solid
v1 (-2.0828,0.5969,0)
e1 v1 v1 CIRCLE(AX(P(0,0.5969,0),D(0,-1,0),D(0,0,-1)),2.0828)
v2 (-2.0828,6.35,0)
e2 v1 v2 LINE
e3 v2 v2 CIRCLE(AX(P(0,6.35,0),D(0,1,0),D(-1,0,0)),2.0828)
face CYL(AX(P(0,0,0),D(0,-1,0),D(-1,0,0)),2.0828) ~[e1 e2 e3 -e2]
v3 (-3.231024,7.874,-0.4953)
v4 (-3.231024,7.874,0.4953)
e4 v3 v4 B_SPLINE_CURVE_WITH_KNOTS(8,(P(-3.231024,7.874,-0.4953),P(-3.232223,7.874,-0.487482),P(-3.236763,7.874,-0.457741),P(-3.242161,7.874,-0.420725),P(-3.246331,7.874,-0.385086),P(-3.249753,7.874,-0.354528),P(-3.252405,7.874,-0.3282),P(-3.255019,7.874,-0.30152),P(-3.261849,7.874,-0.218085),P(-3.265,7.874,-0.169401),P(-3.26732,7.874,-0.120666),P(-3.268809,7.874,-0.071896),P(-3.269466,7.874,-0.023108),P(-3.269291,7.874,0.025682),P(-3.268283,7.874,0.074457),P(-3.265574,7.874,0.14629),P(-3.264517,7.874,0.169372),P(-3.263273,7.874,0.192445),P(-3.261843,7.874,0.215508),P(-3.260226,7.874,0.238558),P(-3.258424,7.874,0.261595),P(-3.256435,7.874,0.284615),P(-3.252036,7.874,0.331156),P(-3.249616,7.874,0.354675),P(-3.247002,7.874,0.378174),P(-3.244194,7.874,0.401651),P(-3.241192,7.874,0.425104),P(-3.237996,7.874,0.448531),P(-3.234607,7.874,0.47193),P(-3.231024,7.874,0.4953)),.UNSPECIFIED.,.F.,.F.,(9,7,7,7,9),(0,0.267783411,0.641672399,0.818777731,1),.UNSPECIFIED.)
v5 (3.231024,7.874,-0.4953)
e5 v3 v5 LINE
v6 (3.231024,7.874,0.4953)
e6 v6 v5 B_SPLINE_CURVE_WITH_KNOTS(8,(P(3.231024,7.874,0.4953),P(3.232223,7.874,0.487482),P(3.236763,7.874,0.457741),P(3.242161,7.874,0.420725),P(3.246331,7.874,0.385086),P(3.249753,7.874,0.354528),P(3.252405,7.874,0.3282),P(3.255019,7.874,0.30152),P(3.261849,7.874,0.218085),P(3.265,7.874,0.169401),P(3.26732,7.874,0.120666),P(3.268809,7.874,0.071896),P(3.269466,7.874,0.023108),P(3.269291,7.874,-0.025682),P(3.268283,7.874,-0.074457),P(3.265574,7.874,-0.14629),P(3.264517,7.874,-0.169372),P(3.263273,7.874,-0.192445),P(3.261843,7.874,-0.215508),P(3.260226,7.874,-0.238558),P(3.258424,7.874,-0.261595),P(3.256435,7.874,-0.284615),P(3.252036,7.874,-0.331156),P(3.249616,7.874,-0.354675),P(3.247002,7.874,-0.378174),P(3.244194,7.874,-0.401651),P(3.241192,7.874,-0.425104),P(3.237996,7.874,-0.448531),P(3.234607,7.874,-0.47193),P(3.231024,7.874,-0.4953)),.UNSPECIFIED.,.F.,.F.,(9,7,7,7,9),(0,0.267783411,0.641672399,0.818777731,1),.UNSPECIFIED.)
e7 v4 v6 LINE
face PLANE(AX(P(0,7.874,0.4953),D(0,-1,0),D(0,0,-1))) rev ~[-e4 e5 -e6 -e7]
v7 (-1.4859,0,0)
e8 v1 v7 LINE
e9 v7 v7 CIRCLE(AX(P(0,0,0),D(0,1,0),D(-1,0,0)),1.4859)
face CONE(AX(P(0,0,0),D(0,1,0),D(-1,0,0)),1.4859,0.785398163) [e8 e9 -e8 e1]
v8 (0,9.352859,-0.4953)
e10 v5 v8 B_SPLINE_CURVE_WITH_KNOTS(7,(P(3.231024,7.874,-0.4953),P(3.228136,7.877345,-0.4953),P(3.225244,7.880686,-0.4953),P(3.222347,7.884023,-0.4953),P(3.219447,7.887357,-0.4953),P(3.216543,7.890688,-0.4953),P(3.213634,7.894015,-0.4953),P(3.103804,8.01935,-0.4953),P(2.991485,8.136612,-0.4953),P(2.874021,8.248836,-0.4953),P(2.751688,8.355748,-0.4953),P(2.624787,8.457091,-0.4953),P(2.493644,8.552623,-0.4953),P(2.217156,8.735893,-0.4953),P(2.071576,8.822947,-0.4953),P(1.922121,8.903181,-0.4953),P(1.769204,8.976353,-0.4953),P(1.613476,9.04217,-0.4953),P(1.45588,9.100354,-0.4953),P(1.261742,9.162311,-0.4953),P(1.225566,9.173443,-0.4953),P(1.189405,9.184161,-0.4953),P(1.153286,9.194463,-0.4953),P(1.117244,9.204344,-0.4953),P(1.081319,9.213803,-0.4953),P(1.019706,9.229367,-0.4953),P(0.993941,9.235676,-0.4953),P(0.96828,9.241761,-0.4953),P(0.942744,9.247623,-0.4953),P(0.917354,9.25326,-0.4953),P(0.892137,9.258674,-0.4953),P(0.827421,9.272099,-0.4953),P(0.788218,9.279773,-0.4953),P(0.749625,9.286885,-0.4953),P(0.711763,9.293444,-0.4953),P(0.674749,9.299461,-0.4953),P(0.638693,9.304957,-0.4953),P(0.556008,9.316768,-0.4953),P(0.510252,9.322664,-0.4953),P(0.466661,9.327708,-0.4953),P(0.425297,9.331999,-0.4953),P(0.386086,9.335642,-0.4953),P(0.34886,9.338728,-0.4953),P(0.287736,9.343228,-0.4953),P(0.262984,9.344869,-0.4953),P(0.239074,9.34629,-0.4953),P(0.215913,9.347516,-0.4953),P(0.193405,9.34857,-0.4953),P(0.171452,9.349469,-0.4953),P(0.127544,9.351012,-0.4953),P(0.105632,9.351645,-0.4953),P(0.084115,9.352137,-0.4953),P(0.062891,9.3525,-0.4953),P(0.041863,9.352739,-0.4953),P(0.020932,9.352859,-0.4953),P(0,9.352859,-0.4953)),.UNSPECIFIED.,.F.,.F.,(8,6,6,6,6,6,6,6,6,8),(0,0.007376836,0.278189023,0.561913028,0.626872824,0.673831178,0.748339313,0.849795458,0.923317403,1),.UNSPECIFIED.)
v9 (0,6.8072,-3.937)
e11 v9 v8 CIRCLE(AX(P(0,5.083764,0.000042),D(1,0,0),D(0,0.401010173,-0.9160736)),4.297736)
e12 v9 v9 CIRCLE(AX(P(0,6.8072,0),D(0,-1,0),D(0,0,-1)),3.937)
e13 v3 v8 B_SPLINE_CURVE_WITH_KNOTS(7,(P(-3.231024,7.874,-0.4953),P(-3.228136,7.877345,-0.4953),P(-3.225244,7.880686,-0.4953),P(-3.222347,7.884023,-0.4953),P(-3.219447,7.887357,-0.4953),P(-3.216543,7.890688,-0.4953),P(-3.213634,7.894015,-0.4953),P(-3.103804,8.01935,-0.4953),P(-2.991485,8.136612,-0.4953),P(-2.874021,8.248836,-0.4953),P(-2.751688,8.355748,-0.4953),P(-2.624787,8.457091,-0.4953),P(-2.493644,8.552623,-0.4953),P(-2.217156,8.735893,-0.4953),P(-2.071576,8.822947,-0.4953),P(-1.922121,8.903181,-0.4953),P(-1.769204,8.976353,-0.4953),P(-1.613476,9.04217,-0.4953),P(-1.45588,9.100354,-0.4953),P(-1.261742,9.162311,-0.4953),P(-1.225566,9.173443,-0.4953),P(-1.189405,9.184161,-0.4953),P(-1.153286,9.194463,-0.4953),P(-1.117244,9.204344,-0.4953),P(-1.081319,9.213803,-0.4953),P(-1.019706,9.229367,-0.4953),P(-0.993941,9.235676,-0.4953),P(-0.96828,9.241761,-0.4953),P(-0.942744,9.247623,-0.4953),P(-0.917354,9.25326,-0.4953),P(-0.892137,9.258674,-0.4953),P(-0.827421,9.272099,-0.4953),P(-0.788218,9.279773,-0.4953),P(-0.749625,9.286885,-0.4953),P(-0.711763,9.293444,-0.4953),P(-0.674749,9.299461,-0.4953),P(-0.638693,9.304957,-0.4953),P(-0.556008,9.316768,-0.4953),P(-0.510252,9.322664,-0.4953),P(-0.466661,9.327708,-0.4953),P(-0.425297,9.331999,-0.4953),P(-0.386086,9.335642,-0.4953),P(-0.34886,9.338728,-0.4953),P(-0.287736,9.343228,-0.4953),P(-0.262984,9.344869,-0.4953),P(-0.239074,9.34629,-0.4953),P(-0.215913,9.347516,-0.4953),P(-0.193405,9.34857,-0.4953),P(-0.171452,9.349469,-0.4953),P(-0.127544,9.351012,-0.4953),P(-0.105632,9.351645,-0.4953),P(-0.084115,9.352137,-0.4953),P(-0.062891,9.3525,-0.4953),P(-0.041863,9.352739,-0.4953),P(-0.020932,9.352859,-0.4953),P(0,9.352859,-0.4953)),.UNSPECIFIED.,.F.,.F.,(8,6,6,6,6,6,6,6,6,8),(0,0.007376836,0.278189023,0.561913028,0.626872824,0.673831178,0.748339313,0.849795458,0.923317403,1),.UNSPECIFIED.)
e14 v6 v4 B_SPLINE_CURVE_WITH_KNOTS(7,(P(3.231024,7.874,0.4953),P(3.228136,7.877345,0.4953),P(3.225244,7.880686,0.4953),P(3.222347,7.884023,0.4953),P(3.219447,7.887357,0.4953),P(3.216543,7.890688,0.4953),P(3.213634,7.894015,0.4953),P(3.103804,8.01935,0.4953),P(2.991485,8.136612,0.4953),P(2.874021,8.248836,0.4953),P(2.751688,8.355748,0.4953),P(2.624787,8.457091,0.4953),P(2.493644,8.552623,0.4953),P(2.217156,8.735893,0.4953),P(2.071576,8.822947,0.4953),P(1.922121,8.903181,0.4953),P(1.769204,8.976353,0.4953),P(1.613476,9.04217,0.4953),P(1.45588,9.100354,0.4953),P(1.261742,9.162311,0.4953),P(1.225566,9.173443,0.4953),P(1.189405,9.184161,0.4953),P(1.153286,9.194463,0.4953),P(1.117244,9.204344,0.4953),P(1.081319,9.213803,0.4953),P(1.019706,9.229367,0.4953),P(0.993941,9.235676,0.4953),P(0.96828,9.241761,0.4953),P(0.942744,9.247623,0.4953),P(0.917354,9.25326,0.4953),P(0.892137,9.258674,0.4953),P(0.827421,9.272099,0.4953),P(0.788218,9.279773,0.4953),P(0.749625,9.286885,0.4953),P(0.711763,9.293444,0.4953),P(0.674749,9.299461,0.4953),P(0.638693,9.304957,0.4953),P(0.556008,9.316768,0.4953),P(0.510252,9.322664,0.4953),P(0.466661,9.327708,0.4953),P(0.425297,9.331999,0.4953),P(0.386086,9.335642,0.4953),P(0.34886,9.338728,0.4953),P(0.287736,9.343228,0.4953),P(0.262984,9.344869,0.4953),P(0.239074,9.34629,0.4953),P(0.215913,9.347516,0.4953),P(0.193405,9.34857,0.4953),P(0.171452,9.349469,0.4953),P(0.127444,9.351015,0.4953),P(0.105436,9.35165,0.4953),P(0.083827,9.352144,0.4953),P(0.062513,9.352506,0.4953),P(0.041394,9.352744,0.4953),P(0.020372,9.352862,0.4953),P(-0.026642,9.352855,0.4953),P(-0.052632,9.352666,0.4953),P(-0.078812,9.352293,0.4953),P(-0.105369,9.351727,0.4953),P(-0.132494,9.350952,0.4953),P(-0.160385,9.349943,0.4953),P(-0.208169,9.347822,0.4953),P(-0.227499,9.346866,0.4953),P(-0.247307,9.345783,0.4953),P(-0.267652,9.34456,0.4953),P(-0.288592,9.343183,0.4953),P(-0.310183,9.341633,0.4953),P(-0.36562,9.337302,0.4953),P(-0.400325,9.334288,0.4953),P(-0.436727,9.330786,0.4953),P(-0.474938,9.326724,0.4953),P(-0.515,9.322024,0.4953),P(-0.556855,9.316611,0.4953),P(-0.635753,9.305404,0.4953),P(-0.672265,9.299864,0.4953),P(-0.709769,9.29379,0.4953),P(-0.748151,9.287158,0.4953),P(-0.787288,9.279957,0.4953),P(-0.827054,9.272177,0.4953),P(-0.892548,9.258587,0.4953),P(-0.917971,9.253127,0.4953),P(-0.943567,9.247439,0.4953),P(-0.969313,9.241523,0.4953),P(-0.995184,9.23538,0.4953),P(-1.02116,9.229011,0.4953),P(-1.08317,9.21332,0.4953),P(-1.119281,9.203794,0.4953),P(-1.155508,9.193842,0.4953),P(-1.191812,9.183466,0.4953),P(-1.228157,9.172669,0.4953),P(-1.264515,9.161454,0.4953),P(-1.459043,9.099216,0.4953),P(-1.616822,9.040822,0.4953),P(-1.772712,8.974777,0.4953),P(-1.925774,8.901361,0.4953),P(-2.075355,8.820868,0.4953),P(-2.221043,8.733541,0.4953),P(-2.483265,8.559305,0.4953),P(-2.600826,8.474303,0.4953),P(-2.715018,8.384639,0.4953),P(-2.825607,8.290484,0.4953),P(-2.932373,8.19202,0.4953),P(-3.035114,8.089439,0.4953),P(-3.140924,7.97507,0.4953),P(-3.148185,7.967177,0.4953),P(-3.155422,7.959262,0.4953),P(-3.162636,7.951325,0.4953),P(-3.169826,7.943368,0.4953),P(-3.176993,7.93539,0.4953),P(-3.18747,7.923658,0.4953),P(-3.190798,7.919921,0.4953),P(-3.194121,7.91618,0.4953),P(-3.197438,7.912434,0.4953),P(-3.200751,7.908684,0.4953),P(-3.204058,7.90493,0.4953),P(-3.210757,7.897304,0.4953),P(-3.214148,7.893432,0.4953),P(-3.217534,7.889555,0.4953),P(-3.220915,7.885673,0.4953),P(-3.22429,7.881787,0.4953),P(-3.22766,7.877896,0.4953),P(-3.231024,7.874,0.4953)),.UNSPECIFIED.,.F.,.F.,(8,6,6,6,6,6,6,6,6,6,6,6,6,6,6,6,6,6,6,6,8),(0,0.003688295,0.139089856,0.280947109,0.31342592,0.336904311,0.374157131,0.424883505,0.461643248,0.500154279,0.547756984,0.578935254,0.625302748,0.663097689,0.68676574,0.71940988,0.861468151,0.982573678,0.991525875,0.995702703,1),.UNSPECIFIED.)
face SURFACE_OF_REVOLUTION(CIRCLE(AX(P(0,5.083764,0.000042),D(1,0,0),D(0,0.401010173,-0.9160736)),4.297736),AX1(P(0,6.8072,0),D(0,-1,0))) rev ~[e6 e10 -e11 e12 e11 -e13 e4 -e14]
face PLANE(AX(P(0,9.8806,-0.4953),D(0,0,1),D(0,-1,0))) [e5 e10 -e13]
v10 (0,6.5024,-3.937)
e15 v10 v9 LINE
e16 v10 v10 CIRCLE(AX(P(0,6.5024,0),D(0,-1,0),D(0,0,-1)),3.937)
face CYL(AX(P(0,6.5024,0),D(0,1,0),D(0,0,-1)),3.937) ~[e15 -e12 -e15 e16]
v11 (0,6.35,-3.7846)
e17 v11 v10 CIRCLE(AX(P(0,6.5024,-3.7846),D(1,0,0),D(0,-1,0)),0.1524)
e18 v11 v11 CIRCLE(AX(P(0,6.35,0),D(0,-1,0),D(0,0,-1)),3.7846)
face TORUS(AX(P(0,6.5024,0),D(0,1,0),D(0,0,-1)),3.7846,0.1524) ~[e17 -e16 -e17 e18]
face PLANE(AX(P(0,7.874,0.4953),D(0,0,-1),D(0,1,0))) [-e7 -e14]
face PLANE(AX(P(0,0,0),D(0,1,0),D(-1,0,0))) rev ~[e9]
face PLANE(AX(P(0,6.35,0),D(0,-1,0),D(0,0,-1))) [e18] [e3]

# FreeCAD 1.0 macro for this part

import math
import FreeCAD as App
import Part
import Sketcher
from FreeCAD import Vector
Q = App.Units.Quantity


def add_polygon(sketch, points):
    """Adds a closed chain of lines whose ends are joined by coincident constraints."""
    first, n = sketch.GeometryCount, len(points)
    for a, b in zip(points, points[1:] + points[:1]):
        sketch.addGeometry(Part.LineSegment(App.Vector(*a, 0), App.Vector(*b, 0)), False)
    for i in range(n):
        sketch.addConstraint(Sketcher.Constraint("Coincident", first + i, 2, first + (i + 1) % n, 1))

doc = App.newDocument("Part")
body = doc.addObject("PartDesign::Body", "Body")

# Sketch on XZ plane
sketch1 = doc.addObject("Sketcher::SketchObject", "Sketch")
body.addObject(sketch1)
sketch1.AttachmentSupport = (doc.XZ_Plane, [""])
sketch1.MapMode = "FlatFace"
sketch1.addGeometry(Part.Circle(Vector(0, 0, 0), Vector(0, 0, 1), 2.1), False)
sketch1.addConstraint(Sketcher.Constraint("Coincident", 0, 3, -1, 1))
sketch1.addConstraint(Sketcher.Constraint("Diameter", 0, Q("0.164 in")))
pad1 = doc.addObject("PartDesign::Pad", "Pad")
body.addObject(pad1)
pad1.Profile = sketch1
pad1.Length = Q("0.25 in")
pad1.Reversed = True

# Sketch on YZ plane
sketch2 = doc.addObject("Sketcher::SketchObject", "Sketch001")
body.addObject(sketch2)
sketch2.AttachmentSupport = (doc.YZ_Plane, [""])
sketch2.MapMode = "FlatFace"
sketch2.addGeometry(Part.LineSegment(Vector(6.35, 0, 0), Vector(6.35, -3.78, 0)), False)
sketch2.addGeometry(Part.ArcOfCircle(Part.Circle(Vector(6.5, -3.78, 0), Vector(0, 0, 1), 0.15), math.radians(180), math.radians(270)), False)
sketch2.addGeometry(Part.LineSegment(Vector(6.5, -3.94, 0), Vector(6.81, -3.94, 0)), False)
sketch2.addGeometry(Part.ArcOfCircle(Part.Circle(Vector(5.08, 0, 0), Vector(0, 0, 1), 4.3), math.radians(-66), math.radians(0)), False)
sketch2.addGeometry(Part.LineSegment(Vector(9.38, 0, 0), Vector(6.35, 0, 0)), False)
sketch2.addConstraint(Sketcher.Constraint("Tangent", 0, 2, 1, 1))
sketch2.addConstraint(Sketcher.Constraint("Tangent", 1, 2, 2, 1))
sketch2.addConstraint(Sketcher.Constraint("Coincident", 2, 2, 3, 1))
sketch2.addConstraint(Sketcher.Constraint("Coincident", 3, 2, 4, 1))
sketch2.addConstraint(Sketcher.Constraint("Coincident", 4, 2, 0, 1))
sketch2.addConstraint(Sketcher.Constraint("Vertical", 0))
sketch2.addConstraint(Sketcher.Constraint("Horizontal", 2))
sketch2.addConstraint(Sketcher.Constraint("Horizontal", 4))
sketch2.addConstraint(Sketcher.Constraint("PointOnObject", 3, 3, -1))
sketch2.addConstraint(Sketcher.Constraint("PointOnObject", 3, 2, -1))
sketch2.addConstraint(Sketcher.Constraint("Radius", 1, Q("0.006 in")))
sketch2.addConstraint(Sketcher.Constraint("Radius", 3, Q("0.1692 in")))
sketch2.addConstraint(Sketcher.Constraint("DistanceY", 1, 2, -1, 1, Q("0.155 in")))
sketch2.addConstraint(Sketcher.Constraint("DistanceX", 0, 2, 2, 2, Q("0.018 in")))
sketch2.addConstraint(Sketcher.Constraint("DistanceX", -1, 1, 0, 2, Q("0.25 in")))
revolution = doc.addObject("PartDesign::Revolution", "Revolution")
body.addObject(revolution)
revolution.Profile = sketch2
revolution.ReferenceAxis = (sketch2, ["H_Axis"])
revolution.Angle = 360

# Sketch on XY plane
sketch3 = doc.addObject("Sketcher::SketchObject", "Sketch002")
body.addObject(sketch3)
sketch3.AttachmentSupport = (doc.XY_Plane, [""])
sketch3.MapMode = "FlatFace"
add_polygon(sketch3, [(-1.5, -1.2), (-1.5, 0), (-2.5, 1), (-3, -1.2)])  # lines 0-3
sketch3.addConstraint(Sketcher.Constraint("Vertical", 0))
sketch3.addConstraint(Sketcher.Constraint("Horizontal", 3))
sketch3.addConstraint(Sketcher.Constraint("PointOnObject", 0, 2, -1))
sketch3.addConstraint(Sketcher.Constraint("Angle", 1, Q("135 deg")))
sketch3.addConstraint(Sketcher.Constraint("DistanceX", 0, 2, -1, 1, Q("0.0585 in")))
sketch3.addConstraint(Sketcher.Constraint("Angle", 2, Q("-101.921 deg")))
sketch3.addConstraint(Sketcher.Constraint("DistanceX", 3, 1, 3, 2, Q("1.4792 mm")))
sketch3.addConstraint(Sketcher.Constraint("DistanceY", 0, 1, 0, 2, Q("1.2188 mm")))
groove = doc.addObject("PartDesign::Groove", "Groove")
body.addObject(groove)
groove.Profile = sketch3
groove.ReferenceAxis = (sketch3, ["V_Axis"])
groove.Angle = 360

# Sketch on YZ plane
sketch4 = doc.addObject("Sketcher::SketchObject", "Sketch003")
body.addObject(sketch4)
sketch4.AttachmentSupport = (doc.YZ_Plane, [""])
sketch4.MapMode = "FlatFace"
add_polygon(sketch4, [(9.9, 0.5), (7.9, 0.5), (7.9, -0.5), (9.9, -0.5)])  # lines 0-3
sketch4.addConstraint(Sketcher.Constraint("Horizontal", 0))
sketch4.addConstraint(Sketcher.Constraint("Vertical", 1))
sketch4.addConstraint(Sketcher.Constraint("Horizontal", 2))
sketch4.addConstraint(Sketcher.Constraint("Vertical", 3))
sketch4.addConstraint(Sketcher.Constraint("DistanceX", 0, 2, 0, 1, Q("0.079 in")))
sketch4.addConstraint(Sketcher.Constraint("DistanceY", 1, 2, 1, 1, Q("0.039 in")))
sketch4.addConstraint(Sketcher.Constraint("DistanceX", -1, 1, 0, 2, Q("0.31 in")))
sketch4.addConstraint(Sketcher.Constraint("DistanceY", -1, 1, 0, 2, Q("0.0195 in")))
pocket1 = doc.addObject("PartDesign::Pocket", "Pocket")
body.addObject(pocket1)
pocket1.Profile = sketch4
pocket1.Length = Q("0.5 in")
pocket1.Midplane = True

doc.recompute()
